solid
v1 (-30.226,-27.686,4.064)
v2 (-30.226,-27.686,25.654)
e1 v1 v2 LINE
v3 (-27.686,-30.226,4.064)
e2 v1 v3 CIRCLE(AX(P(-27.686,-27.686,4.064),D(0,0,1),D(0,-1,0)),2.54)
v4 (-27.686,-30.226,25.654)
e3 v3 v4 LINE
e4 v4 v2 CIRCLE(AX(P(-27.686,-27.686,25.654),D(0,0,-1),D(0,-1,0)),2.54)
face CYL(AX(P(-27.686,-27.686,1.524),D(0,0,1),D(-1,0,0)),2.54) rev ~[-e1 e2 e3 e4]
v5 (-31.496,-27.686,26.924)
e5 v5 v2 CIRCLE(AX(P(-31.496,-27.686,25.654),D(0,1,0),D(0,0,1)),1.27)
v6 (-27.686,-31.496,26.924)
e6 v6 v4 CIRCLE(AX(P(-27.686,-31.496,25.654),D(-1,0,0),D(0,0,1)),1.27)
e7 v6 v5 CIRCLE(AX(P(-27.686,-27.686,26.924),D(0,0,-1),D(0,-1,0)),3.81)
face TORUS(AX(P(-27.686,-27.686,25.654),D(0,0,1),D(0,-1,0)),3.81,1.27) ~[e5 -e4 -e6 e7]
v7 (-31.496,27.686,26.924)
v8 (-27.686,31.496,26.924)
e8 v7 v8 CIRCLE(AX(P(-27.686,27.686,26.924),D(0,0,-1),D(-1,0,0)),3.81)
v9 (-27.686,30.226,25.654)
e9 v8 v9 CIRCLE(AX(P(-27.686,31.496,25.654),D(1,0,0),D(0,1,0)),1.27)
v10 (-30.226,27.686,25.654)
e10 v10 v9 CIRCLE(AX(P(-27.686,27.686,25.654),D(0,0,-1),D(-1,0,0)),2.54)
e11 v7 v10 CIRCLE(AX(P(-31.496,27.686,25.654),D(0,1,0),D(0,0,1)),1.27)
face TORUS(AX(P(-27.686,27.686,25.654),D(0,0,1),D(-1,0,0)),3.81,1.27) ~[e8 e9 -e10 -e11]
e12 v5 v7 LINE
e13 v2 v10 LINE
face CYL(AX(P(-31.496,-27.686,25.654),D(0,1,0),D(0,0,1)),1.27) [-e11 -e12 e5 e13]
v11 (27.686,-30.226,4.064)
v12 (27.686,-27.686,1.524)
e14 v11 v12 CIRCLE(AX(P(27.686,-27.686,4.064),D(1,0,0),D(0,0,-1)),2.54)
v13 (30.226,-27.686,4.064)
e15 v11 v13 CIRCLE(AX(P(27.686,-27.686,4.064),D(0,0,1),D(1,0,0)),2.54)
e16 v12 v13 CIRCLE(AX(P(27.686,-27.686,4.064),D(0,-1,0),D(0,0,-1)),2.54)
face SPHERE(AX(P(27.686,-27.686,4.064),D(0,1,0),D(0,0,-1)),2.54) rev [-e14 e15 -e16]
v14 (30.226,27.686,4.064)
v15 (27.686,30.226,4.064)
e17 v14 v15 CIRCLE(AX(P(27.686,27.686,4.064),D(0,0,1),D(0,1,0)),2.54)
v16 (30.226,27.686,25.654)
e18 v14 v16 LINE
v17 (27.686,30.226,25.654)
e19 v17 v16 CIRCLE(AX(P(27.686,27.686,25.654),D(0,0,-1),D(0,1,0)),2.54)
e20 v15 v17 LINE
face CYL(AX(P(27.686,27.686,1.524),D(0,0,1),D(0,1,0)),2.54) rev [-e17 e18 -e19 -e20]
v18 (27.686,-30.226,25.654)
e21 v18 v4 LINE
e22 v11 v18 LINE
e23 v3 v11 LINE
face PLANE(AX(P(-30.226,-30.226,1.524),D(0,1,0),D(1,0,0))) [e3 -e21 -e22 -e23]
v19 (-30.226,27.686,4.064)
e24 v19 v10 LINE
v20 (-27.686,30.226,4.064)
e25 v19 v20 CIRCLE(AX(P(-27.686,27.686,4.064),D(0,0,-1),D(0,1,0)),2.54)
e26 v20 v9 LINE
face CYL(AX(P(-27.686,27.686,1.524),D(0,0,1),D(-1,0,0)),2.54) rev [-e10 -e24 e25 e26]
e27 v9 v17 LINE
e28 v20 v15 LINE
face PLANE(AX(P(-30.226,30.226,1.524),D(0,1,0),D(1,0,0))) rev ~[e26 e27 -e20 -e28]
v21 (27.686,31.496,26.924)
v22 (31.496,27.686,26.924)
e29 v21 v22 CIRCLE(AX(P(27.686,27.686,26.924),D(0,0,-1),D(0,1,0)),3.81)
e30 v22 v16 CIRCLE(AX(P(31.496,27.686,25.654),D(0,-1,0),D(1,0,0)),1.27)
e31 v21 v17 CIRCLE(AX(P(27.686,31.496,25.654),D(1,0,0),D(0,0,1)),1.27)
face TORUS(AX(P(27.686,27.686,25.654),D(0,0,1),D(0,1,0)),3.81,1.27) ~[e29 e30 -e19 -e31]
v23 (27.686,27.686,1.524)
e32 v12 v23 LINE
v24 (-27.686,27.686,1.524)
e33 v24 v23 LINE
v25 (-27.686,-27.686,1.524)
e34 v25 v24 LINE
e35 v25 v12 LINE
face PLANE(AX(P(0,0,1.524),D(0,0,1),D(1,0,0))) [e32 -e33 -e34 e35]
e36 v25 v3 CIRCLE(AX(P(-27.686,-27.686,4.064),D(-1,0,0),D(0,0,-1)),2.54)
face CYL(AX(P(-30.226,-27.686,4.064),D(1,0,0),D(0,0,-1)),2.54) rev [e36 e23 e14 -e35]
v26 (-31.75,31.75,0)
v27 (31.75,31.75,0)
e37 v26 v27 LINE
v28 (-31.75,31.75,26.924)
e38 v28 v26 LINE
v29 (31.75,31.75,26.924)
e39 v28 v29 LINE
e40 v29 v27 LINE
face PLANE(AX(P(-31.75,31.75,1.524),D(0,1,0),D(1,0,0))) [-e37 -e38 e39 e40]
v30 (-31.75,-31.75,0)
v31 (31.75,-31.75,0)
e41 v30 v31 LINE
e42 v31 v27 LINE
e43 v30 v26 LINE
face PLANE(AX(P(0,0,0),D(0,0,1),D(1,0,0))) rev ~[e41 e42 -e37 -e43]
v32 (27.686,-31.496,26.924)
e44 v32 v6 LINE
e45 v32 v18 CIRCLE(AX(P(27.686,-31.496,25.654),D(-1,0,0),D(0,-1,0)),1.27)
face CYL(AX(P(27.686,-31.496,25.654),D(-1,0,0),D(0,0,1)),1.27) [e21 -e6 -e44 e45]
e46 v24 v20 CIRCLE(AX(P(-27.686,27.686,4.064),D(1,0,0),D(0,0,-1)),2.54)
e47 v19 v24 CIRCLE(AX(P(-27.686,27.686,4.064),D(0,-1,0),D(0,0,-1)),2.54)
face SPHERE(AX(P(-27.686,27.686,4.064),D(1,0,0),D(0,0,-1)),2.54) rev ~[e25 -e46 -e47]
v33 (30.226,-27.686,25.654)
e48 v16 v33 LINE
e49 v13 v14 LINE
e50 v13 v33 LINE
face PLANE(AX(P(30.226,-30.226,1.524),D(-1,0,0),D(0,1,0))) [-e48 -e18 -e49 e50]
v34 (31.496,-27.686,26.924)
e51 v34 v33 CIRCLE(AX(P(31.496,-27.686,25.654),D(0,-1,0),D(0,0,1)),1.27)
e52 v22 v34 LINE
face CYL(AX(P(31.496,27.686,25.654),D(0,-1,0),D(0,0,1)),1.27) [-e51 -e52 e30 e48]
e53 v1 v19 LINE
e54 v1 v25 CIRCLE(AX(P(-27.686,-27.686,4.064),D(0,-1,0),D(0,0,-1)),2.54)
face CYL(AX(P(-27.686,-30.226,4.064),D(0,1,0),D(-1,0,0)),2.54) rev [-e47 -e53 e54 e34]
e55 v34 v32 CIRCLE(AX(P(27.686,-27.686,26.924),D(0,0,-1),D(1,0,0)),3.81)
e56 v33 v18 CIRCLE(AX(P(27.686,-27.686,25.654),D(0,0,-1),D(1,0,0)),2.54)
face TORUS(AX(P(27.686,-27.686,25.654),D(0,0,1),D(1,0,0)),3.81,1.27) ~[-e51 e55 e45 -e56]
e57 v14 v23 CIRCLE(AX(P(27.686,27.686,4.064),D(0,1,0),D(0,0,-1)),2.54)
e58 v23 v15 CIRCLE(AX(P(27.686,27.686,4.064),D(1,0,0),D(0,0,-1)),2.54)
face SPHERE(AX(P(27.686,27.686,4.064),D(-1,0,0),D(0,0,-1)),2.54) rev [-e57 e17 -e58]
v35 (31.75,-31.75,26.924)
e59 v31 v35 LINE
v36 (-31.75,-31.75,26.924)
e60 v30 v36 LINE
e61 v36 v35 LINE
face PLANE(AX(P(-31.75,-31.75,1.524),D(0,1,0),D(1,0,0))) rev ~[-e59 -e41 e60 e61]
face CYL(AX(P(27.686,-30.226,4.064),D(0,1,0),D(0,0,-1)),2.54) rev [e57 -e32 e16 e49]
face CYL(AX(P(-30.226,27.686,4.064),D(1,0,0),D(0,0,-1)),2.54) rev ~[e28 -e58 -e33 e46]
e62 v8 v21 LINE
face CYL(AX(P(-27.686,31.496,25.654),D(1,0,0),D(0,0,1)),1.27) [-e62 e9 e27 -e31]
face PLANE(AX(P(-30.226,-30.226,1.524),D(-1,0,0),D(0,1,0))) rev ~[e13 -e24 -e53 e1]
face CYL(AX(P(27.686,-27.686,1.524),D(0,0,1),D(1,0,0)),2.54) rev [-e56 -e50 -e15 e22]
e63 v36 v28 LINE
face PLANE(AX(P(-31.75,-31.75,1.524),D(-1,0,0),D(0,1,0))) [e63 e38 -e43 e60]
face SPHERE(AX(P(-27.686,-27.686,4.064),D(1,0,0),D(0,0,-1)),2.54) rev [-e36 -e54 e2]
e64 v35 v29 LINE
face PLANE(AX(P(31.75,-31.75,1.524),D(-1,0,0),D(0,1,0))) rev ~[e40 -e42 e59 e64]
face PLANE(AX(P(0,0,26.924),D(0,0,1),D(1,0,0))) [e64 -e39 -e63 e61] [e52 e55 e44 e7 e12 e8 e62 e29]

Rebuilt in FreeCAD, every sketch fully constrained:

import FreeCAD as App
import Part
import Sketcher

V = App.Vector
Q = App.Units.Quantity


def edges_at(feature, points):
    """Names of the edges that pass closest to the given points."""
    edges = feature.Shape.Edges
    near = lambda p: min(range(len(edges)), key=lambda i: edges[i].distToShape(Part.Vertex(*p))[0])
    return sorted({f"Edge{near(p) + 1}" for p in points})

doc = App.newDocument("Part")
body = doc.addObject("PartDesign::Body", "Body")

sketch1 = body.newObject("Sketcher::SketchObject", "Sketch")
sketch1.AttachmentSupport = (doc.getObject("XY_Plane"), [""])
sketch1.MapMode = "FlatFace"
sketch1.addGeometry(Part.LineSegment(V(-31.75, 31.75, 0), V(-31.75, -31.75, 0)), False)
sketch1.addGeometry(Part.LineSegment(V(-31.75, -31.75, 0), V(31.75, -31.75, 0)), False)
sketch1.addGeometry(Part.LineSegment(V(31.75, -31.75, 0), V(31.75, 31.75, 0)), False)
sketch1.addGeometry(Part.LineSegment(V(31.75, 31.75, 0), V(-31.75, 31.75, 0)), False)
sketch1.addConstraint(Sketcher.Constraint("Coincident", 0, 2, 1, 1))
sketch1.addConstraint(Sketcher.Constraint("Coincident", 1, 2, 2, 1))
sketch1.addConstraint(Sketcher.Constraint("Coincident", 2, 2, 3, 1))
sketch1.addConstraint(Sketcher.Constraint("Coincident", 3, 2, 0, 1))
sketch1.addConstraint(Sketcher.Constraint("Vertical", 0))
sketch1.addConstraint(Sketcher.Constraint("Horizontal", 1))
sketch1.addConstraint(Sketcher.Constraint("Vertical", 2))
sketch1.addConstraint(Sketcher.Constraint("Horizontal", 3))
sketch1.addConstraint(Sketcher.Constraint("Symmetric", 0, 2, 2, 2, -1, 1))
sketch1.addConstraint(Sketcher.Constraint("Equal", 3, 0))
sketch1.addConstraint(Sketcher.Constraint("DistanceX", 1, 1, 1, 2, Q("2.5 in")))
pad1 = body.newObject("PartDesign::Pad", "Pad")
pad1.Profile = sketch1
pad1.Length = Q("0.06 in")

sketch2 = body.newObject("Sketcher::SketchObject", "Sketch001")
sketch2.AttachmentSupport = (doc.getObject("XY_Plane"), [""])
sketch2.MapMode = "FlatFace"
sketch2.AttachmentOffset = App.Placement(V(0, 0, 0.06 * 25.4), App.Rotation())
sketch2.addGeometry(Part.LineSegment(V(-31.75, 31.75, 0), V(-31.75, -31.75, 0)), False)
sketch2.addGeometry(Part.LineSegment(V(-31.75, -31.75, 0), V(31.75, -31.75, 0)), False)
sketch2.addGeometry(Part.LineSegment(V(31.75, -31.75, 0), V(31.75, 31.75, 0)), False)
sketch2.addGeometry(Part.LineSegment(V(31.75, 31.75, 0), V(-31.75, 31.75, 0)), False)
sketch2.addGeometry(Part.LineSegment(V(30.226, -30.226, 0), V(-30.226, -30.226, 0)), False)
sketch2.addGeometry(Part.LineSegment(V(-30.226, -30.226, 0), V(-30.226, 30.226, 0)), False)
sketch2.addGeometry(Part.LineSegment(V(-30.226, 30.226, 0), V(30.226, 30.226, 0)), False)
sketch2.addGeometry(Part.LineSegment(V(30.226, 30.226, 0), V(30.226, -30.226, 0)), False)
sketch2.addConstraint(Sketcher.Constraint("Coincident", 0, 2, 1, 1))
sketch2.addConstraint(Sketcher.Constraint("Coincident", 1, 2, 2, 1))
sketch2.addConstraint(Sketcher.Constraint("Coincident", 2, 2, 3, 1))
sketch2.addConstraint(Sketcher.Constraint("Coincident", 3, 2, 0, 1))
sketch2.addConstraint(Sketcher.Constraint("Coincident", 4, 2, 5, 1))
sketch2.addConstraint(Sketcher.Constraint("Coincident", 5, 2, 6, 1))
sketch2.addConstraint(Sketcher.Constraint("Coincident", 6, 2, 7, 1))
sketch2.addConstraint(Sketcher.Constraint("Coincident", 7, 2, 4, 1))
sketch2.addConstraint(Sketcher.Constraint("Vertical", 0))
sketch2.addConstraint(Sketcher.Constraint("Horizontal", 1))
sketch2.addConstraint(Sketcher.Constraint("Vertical", 2))
sketch2.addConstraint(Sketcher.Constraint("Horizontal", 3))
sketch2.addConstraint(Sketcher.Constraint("Horizontal", 4))
sketch2.addConstraint(Sketcher.Constraint("Vertical", 5))
sketch2.addConstraint(Sketcher.Constraint("Horizontal", 6))
sketch2.addConstraint(Sketcher.Constraint("Vertical", 7))
sketch2.addConstraint(Sketcher.Constraint("Symmetric", 0, 2, 2, 2, -1, 1))
sketch2.addConstraint(Sketcher.Constraint("Symmetric", 4, 2, 6, 2, -1, 1))
sketch2.addConstraint(Sketcher.Constraint("Equal", 3, 0))
sketch2.addConstraint(Sketcher.Constraint("Equal", 6, 5))
sketch2.addConstraint(Sketcher.Constraint("DistanceX", 1, 1, 1, 2, Q("2.5 in")))
sketch2.addConstraint(Sketcher.Constraint("DistanceX", 4, 2, 4, 1, Q("2.38 in")))
pad2 = body.newObject("PartDesign::Pad", "Pad001")
pad2.Profile = sketch2
pad2.Length = Q("1 in")
doc.recompute()

fillet = body.newObject("PartDesign::Fillet", "Fillet")
fillet.Base = (pad2, edges_at(pad2, [
    (0, 30.226, 1.524),
    (30.226, 0, 1.524),
    (0, -30.226, 1.524),
    (-30.226, 0, 1.524),
    (-30.226, 30.226, 14.224),
    (30.226, 30.226, 14.224),
    (30.226, -30.226, 14.224),
    (-30.226, -30.226, 14.224),
]))
fillet.Radius = Q("0.1 in")
doc.recompute()

fillet2 = body.newObject("PartDesign::Fillet", "Fillet001")
fillet2.Base = (fillet, edges_at(fillet, [(-30.226, 0, 26.924)]))
fillet2.Radius = Q("0.05 in")

doc.recompute()
